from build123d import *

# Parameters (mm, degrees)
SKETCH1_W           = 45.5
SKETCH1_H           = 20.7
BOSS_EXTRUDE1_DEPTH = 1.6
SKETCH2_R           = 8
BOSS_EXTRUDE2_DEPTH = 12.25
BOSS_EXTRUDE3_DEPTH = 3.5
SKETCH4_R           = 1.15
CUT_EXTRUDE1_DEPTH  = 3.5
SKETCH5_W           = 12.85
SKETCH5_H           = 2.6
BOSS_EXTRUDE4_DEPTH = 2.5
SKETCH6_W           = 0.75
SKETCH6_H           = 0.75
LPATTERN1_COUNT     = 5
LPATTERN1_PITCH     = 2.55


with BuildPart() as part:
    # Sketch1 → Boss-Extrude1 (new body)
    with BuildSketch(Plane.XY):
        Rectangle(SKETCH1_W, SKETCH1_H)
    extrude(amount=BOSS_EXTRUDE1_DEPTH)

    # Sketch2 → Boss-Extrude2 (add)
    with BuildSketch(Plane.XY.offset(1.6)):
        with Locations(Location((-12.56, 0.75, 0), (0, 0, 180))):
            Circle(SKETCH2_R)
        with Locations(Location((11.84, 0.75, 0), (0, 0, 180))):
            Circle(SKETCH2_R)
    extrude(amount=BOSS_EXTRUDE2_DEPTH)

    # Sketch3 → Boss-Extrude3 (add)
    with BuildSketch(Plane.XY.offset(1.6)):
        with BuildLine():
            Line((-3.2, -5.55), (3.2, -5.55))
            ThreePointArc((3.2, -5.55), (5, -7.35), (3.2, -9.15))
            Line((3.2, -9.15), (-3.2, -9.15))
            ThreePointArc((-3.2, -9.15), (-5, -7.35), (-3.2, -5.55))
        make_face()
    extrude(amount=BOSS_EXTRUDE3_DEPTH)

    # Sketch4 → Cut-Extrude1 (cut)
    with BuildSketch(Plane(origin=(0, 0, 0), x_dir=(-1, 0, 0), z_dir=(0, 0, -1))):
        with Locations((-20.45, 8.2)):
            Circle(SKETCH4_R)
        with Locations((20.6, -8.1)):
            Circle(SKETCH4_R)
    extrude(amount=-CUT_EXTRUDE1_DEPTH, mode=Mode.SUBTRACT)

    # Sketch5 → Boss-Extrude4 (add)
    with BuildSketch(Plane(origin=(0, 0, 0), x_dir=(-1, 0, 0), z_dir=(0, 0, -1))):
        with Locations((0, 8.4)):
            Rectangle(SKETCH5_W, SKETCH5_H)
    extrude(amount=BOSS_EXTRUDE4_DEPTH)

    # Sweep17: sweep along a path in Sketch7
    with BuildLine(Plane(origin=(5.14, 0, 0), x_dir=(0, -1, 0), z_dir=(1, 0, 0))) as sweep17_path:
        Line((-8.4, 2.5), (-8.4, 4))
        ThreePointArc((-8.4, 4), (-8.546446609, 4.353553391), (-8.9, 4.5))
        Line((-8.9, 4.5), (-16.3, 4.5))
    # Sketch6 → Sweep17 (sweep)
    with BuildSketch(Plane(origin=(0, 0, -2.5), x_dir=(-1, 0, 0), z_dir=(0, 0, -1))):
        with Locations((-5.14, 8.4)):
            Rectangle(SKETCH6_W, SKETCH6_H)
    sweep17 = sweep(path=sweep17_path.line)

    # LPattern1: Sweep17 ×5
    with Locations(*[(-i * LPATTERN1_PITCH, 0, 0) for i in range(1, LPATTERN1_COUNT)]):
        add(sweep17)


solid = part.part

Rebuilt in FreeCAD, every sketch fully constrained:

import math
import FreeCAD as App
import Part
import Sketcher
from FreeCAD import Vector

doc = App.newDocument("Part")
body = doc.addObject("PartDesign::Body", "Body")

# Sketch on XY plane
sketch1 = doc.addObject("Sketcher::SketchObject", "Sketch")
body.addObject(sketch1)
sketch1.AttachmentSupport = (doc.XY_Plane, [""])
sketch1.MapMode = "FlatFace"
sketch1.addGeometry(Part.LineSegment(Vector(-22.75, 10.35, 0), Vector(-22.75, -10.35, 0)), False)
sketch1.addGeometry(Part.LineSegment(Vector(-22.75, -10.35, 0), Vector(22.75, -10.35, 0)), False)
sketch1.addGeometry(Part.LineSegment(Vector(22.75, -10.35, 0), Vector(22.75, 10.35, 0)), False)
sketch1.addGeometry(Part.LineSegment(Vector(22.75, 10.35, 0), Vector(-22.75, 10.35, 0)), False)
sketch1.addConstraint(Sketcher.Constraint("Coincident", 0, 2, 1, 1))
sketch1.addConstraint(Sketcher.Constraint("Coincident", 1, 2, 2, 1))
sketch1.addConstraint(Sketcher.Constraint("Coincident", 2, 2, 3, 1))
sketch1.addConstraint(Sketcher.Constraint("Coincident", 3, 2, 0, 1))
sketch1.addConstraint(Sketcher.Constraint("Vertical", 0))
sketch1.addConstraint(Sketcher.Constraint("Horizontal", 1))
sketch1.addConstraint(Sketcher.Constraint("Vertical", 2))
sketch1.addConstraint(Sketcher.Constraint("Horizontal", 3))
sketch1.addConstraint(Sketcher.Constraint("Symmetric", 0, 2, 2, 2, -1, 1))
sketch1.addConstraint(Sketcher.Constraint("DistanceX", 1, 1, 1, 2, 45.5))
sketch1.addConstraint(Sketcher.Constraint("DistanceY", 0, 2, 0, 1, 20.7))
pad1 = doc.addObject("PartDesign::Pad", "Pad")
body.addObject(pad1)
pad1.Profile = sketch1
pad1.Length = 1.6

# Sketch on XY plane
sketch2 = doc.addObject("Sketcher::SketchObject", "Sketch001")
body.addObject(sketch2)
sketch2.AttachmentSupport = (doc.XY_Plane, [""])
sketch2.MapMode = "FlatFace"
sketch2.AttachmentOffset = App.Placement(Vector(0, 0, 1.6), App.Rotation())
sketch2.addGeometry(Part.Circle(Vector(-12.56, 0.75, 0), Vector(0, 0, 1), 8), False)
sketch2.addGeometry(Part.Circle(Vector(11.84, 0.75, 0), Vector(0, 0, 1), 8), False)
sketch2.addConstraint(Sketcher.Constraint("Equal", 0, 1))
sketch2.addConstraint(Sketcher.Constraint("Horizontal", 0, 3, 1, 3))
sketch2.addConstraint(Sketcher.Constraint("Diameter", 0, 16.0))
sketch2.addConstraint(Sketcher.Constraint("DistanceX", 0, 3, 1, 3, 24.4))
sketch2.addConstraint(Sketcher.Constraint("DistanceX", 0, 3, -1, 1, 12.56))
sketch2.addConstraint(Sketcher.Constraint("DistanceY", -1, 1, 0, 3, 0.75))
pad2 = doc.addObject("PartDesign::Pad", "Pad001")
body.addObject(pad2)
pad2.Profile = sketch2
pad2.Length = 12.25

# Sketch on XY plane
sketch3 = doc.addObject("Sketcher::SketchObject", "Sketch002")
body.addObject(sketch3)
sketch3.AttachmentSupport = (doc.XY_Plane, [""])
sketch3.MapMode = "FlatFace"
sketch3.AttachmentOffset = App.Placement(Vector(0, 0, 1.6), App.Rotation())
sketch3.addGeometry(Part.LineSegment(Vector(3.2, -5.55, 0), Vector(-3.2, -5.55, 0)), False)
sketch3.addGeometry(Part.ArcOfCircle(Part.Circle(Vector(-3.2, -7.35, 0), Vector(0, 0, 1), 1.8), math.radians(90), math.radians(270)), False)
sketch3.addGeometry(Part.LineSegment(Vector(-3.2, -9.15, 0), Vector(3.2, -9.15, 0)), False)
sketch3.addGeometry(Part.ArcOfCircle(Part.Circle(Vector(3.2, -7.35, 0), Vector(0, 0, 1), 1.8), math.radians(-90), math.radians(90)), False)
sketch3.addConstraint(Sketcher.Constraint("Tangent", 0, 2, 1, 1))
sketch3.addConstraint(Sketcher.Constraint("Tangent", 1, 2, 2, 1))
sketch3.addConstraint(Sketcher.Constraint("Tangent", 2, 2, 3, 1))
sketch3.addConstraint(Sketcher.Constraint("Tangent", 3, 2, 0, 1))
sketch3.addConstraint(Sketcher.Constraint("Horizontal", 0))
sketch3.addConstraint(Sketcher.Constraint("Horizontal", 2))
sketch3.addConstraint(Sketcher.Constraint("Radius", 1, 1.8))
sketch3.addConstraint(Sketcher.Constraint("DistanceX", 0, 2, 0, 1, 6.4))
sketch3.addConstraint(Sketcher.Constraint("DistanceX", 1, 3, -1, 1, 3.2))
sketch3.addConstraint(Sketcher.Constraint("DistanceY", 1, 3, -1, 1, 7.35))
pad3 = doc.addObject("PartDesign::Pad", "Pad002")
body.addObject(pad3)
pad3.Profile = sketch3
pad3.Length = 3.5

# Sketch on XY plane
sketch4 = doc.addObject("Sketcher::SketchObject", "Sketch003")
body.addObject(sketch4)
sketch4.AttachmentSupport = (doc.XY_Plane, [""])
sketch4.MapMode = "FlatFace"
sketch4.addGeometry(Part.Circle(Vector(20.45, 8.2, 0), Vector(0, 0, 1), 1.15), False)
sketch4.addGeometry(Part.Circle(Vector(-20.6, -8.1, 0), Vector(0, 0, 1), 1.15), False)
sketch4.addConstraint(Sketcher.Constraint("Equal", 0, 1))
sketch4.addConstraint(Sketcher.Constraint("Diameter", 0, 2.3))
sketch4.addConstraint(Sketcher.Constraint("DistanceY", -1, 1, 0, 3, 8.2))
sketch4.addConstraint(Sketcher.Constraint("DistanceX", 1, 3, -1, 1, 20.6))
sketch4.addConstraint(Sketcher.Constraint("DistanceY", 1, 3, -1, 1, 8.1))
sketch4.addConstraint(Sketcher.Constraint("DistanceX", -1, 1, 0, 3, 20.45))
pocket1 = doc.addObject("PartDesign::Pocket", "Pocket")
body.addObject(pocket1)
pocket1.Profile = sketch4
pocket1.Length = 3.5
pocket1.Reversed = True

# Sketch on XY plane
sketch5 = doc.addObject("Sketcher::SketchObject", "Sketch004")
body.addObject(sketch5)
sketch5.AttachmentSupport = (doc.XY_Plane, [""])
sketch5.MapMode = "FlatFace"
sketch5.addGeometry(Part.LineSegment(Vector(6.425, 9.7, 0), Vector(6.425, 7.1, 0)), False)
sketch5.addGeometry(Part.LineSegment(Vector(6.425, 7.1, 0), Vector(-6.425, 7.1, 0)), False)
sketch5.addGeometry(Part.LineSegment(Vector(-6.425, 7.1, 0), Vector(-6.425, 9.7, 0)), False)
sketch5.addGeometry(Part.LineSegment(Vector(-6.425, 9.7, 0), Vector(6.425, 9.7, 0)), False)
sketch5.addConstraint(Sketcher.Constraint("Coincident", 0, 2, 1, 1))
sketch5.addConstraint(Sketcher.Constraint("Coincident", 1, 2, 2, 1))
sketch5.addConstraint(Sketcher.Constraint("Coincident", 2, 2, 3, 1))
sketch5.addConstraint(Sketcher.Constraint("Coincident", 3, 2, 0, 1))
sketch5.addConstraint(Sketcher.Constraint("Vertical", 0))
sketch5.addConstraint(Sketcher.Constraint("Horizontal", 1))
sketch5.addConstraint(Sketcher.Constraint("Vertical", 2))
sketch5.addConstraint(Sketcher.Constraint("Horizontal", 3))
sketch5.addConstraint(Sketcher.Constraint("DistanceY", 0, 2, 0, 1, 2.6))
sketch5.addConstraint(Sketcher.Constraint("DistanceX", 1, 2, 1, 1, 12.85))
sketch5.addConstraint(Sketcher.Constraint("DistanceY", -1, 1, 0, 2, 7.1))
sketch5.addConstraint(Sketcher.Constraint("DistanceX", -1, 1, 0, 2, 6.425))
pad4 = doc.addObject("PartDesign::Pad", "Pad003")
body.addObject(pad4)
pad4.Profile = sketch5
pad4.Length = 2.5
pad4.Reversed = True

# Sketch on XY plane
sketch6 = doc.addObject("Sketcher::SketchObject", "Sketch005")
body.addObject(sketch6)
sketch6.AttachmentSupport = (doc.XY_Plane, [""])
sketch6.MapMode = "FlatFace"
sketch6.AttachmentOffset = App.Placement(Vector(0, 0, -2.5), App.Rotation())
sketch6.addGeometry(Part.LineSegment(Vector(5.515, 8.775, 0), Vector(5.515, 8.025, 0)), False)
sketch6.addGeometry(Part.LineSegment(Vector(5.515, 8.025, 0), Vector(4.765, 8.025, 0)), False)
sketch6.addGeometry(Part.LineSegment(Vector(4.765, 8.025, 0), Vector(4.765, 8.775, 0)), False)
sketch6.addGeometry(Part.LineSegment(Vector(4.765, 8.775, 0), Vector(5.515, 8.775, 0)), False)
sketch6.addConstraint(Sketcher.Constraint("Coincident", 0, 2, 1, 1))
sketch6.addConstraint(Sketcher.Constraint("Coincident", 1, 2, 2, 1))
sketch6.addConstraint(Sketcher.Constraint("Coincident", 2, 2, 3, 1))
sketch6.addConstraint(Sketcher.Constraint("Coincident", 3, 2, 0, 1))
sketch6.addConstraint(Sketcher.Constraint("Vertical", 0))
sketch6.addConstraint(Sketcher.Constraint("Horizontal", 1))
sketch6.addConstraint(Sketcher.Constraint("Vertical", 2))
sketch6.addConstraint(Sketcher.Constraint("Horizontal", 3))
sketch6.addConstraint(Sketcher.Constraint("Equal", 3, 0))
sketch6.addConstraint(Sketcher.Constraint("DistanceX", 1, 2, 1, 1, 0.75))
sketch6.addConstraint(Sketcher.Constraint("DistanceX", -1, 1, 0, 2, 5.515))
sketch6.addConstraint(Sketcher.Constraint("DistanceY", -1, 1, 0, 2, 8.025))

# Sketch on YZ plane
sketch7 = doc.addObject("Sketcher::SketchObject", "Sketch006")
body.addObject(sketch7)
sketch7.AttachmentSupport = (doc.YZ_Plane, [""])
sketch7.MapMode = "FlatFace"
sketch7.AttachmentOffset = App.Placement(Vector(0, 0, 5.14), App.Rotation())
sketch7.addGeometry(Part.LineSegment(Vector(8.4, -2.5, 0), Vector(8.4, -4, 0)), False)
sketch7.addGeometry(Part.ArcOfCircle(Part.Circle(Vector(8.9, -4, 0), Vector(0, 0, 1), 0.5), math.radians(180), math.radians(270)), False)
sketch7.addGeometry(Part.LineSegment(Vector(8.9, -4.5, 0), Vector(16.3, -4.5, 0)), False)
sketch7.addConstraint(Sketcher.Constraint("Tangent", 0, 2, 1, 1))
sketch7.addConstraint(Sketcher.Constraint("Tangent", 1, 2, 2, 1))
sketch7.addConstraint(Sketcher.Constraint("Vertical", 0))
sketch7.addConstraint(Sketcher.Constraint("Horizontal", 2))
sketch7.addConstraint(Sketcher.Constraint("Radius", 1, 0.5))
sketch7.addConstraint(Sketcher.Constraint("DistanceX", 2, 1, 2, 2, 7.4))
sketch7.addConstraint(Sketcher.Constraint("DistanceY", 0, 2, 0, 1, 1.5))
sketch7.addConstraint(Sketcher.Constraint("DistanceY", 1, 3, -1, 1, 4.0))
sketch7.addConstraint(Sketcher.Constraint("DistanceX", -1, 1, 1, 3, 8.9))
doc.recompute()

additivepipe = doc.addObject("PartDesign::AdditivePipe", "AdditivePipe")
body.addObject(additivepipe)
additivepipe.Profile = sketch6
additivepipe.Spine = (sketch7, ["Edge1", "Edge2", "Edge3"])
doc.recompute()

linearpattern = doc.addObject("PartDesign::LinearPattern", "LinearPattern")
body.addObject(linearpattern)
linearpattern.Originals = [additivepipe]
linearpattern.Direction = (doc.X_Axis, [""])
linearpattern.Mode = "offset"
linearpattern.Offset = 2.55
linearpattern.Occurrences = 5
linearpattern.Reversed = True
body.Tip = linearpattern

doc.recompute()
